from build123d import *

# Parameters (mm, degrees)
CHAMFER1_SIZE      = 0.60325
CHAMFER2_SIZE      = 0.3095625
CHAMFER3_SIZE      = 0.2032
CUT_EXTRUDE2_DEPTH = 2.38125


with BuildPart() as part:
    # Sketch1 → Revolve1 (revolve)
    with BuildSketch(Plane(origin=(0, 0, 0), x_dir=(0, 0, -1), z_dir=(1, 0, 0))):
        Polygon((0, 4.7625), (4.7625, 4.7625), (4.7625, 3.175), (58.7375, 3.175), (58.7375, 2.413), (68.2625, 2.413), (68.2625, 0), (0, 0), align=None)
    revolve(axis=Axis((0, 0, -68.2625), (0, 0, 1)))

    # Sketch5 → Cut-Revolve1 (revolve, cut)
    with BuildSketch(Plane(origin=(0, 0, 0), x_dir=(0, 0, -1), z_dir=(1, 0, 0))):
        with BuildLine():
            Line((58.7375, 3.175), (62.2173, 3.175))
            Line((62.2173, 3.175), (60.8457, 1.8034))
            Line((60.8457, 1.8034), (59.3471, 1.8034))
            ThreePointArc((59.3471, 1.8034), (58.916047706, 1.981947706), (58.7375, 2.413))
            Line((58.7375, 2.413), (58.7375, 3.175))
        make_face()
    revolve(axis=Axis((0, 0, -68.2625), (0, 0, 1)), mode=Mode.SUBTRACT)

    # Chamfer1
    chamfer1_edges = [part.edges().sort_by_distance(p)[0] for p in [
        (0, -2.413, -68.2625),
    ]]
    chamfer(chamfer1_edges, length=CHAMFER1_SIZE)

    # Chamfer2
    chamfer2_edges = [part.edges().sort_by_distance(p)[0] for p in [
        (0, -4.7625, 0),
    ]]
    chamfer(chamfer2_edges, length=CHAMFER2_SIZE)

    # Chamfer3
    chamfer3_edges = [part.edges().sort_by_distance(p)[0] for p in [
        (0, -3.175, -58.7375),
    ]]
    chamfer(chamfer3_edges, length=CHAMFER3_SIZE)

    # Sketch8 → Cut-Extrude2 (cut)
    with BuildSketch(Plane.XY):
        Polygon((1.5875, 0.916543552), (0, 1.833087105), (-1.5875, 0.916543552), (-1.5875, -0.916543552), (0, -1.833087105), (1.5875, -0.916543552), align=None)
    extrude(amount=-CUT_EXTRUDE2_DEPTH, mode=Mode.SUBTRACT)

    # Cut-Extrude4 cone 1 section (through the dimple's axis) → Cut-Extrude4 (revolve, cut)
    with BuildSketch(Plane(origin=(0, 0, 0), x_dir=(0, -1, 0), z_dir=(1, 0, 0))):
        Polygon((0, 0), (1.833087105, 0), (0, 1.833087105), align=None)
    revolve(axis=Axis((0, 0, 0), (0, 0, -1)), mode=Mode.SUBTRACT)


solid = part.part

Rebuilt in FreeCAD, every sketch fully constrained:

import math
import FreeCAD as App
import Part
import Sketcher

V = App.Vector
Q = App.Units.Quantity


def edges_at(feature, points):
    """Names of the edges that pass closest to the given points."""
    edges = feature.Shape.Edges
    near = lambda p: min(range(len(edges)), key=lambda i: edges[i].distToShape(Part.Vertex(*p))[0])
    return sorted({f"Edge{near(p) + 1}" for p in points})

doc = App.newDocument("Part")
body = doc.addObject("PartDesign::Body", "Body")

sketch1 = doc.addObject("Sketcher::SketchObject", "Sketch")
body.addObject(sketch1)
sketch1.AttachmentSupport = (doc.YZ_Plane, [""])
sketch1.MapMode = "FlatFace"
sketch1.addGeometry([
    Part.LineSegment(V(4.8, -4.8, 0), V(4.8, 0, 0)),
    Part.LineSegment(V(4.8, 0, 0), V(0, 0, 0)),
    Part.LineSegment(V(0, 0, 0), V(0, -68.3, 0)),
    Part.LineSegment(V(0, -68.3, 0), V(2.4, -68.3, 0)),
    Part.LineSegment(V(2.4, -68.3, 0), V(2.4, -58.7, 0)),
    Part.LineSegment(V(2.4, -58.7, 0), V(3.2, -58.7, 0)),
    Part.LineSegment(V(3.2, -58.7, 0), V(3.2, -4.8, 0)),
    Part.LineSegment(V(3.2, -4.8, 0), V(4.8, -4.8, 0)),
], False)
sketch1.addConstraint([
    Sketcher.Constraint("Coincident", 0, 2, 1, 1),
    Sketcher.Constraint("Coincident", 1, 2, 2, 1),
    Sketcher.Constraint("Coincident", 2, 2, 3, 1),
    Sketcher.Constraint("Coincident", 3, 2, 4, 1),
    Sketcher.Constraint("Coincident", 4, 2, 5, 1),
    Sketcher.Constraint("Coincident", 5, 2, 6, 1),
    Sketcher.Constraint("Coincident", 6, 2, 7, 1),
    Sketcher.Constraint("Coincident", 7, 2, 0, 1),
    Sketcher.Constraint("Vertical", 0),
    Sketcher.Constraint("Horizontal", 1),
    Sketcher.Constraint("Vertical", 2),
    Sketcher.Constraint("Horizontal", 3),
    Sketcher.Constraint("Vertical", 4),
    Sketcher.Constraint("Horizontal", 5),
    Sketcher.Constraint("Vertical", 6),
    Sketcher.Constraint("Horizontal", 7),
    Sketcher.Constraint("Coincident", 1, 2, -1, 1),
    Sketcher.Constraint("Equal", 1, 0),
    Sketcher.Constraint("DistanceX", 5, 1, 5, 2, Q("0.03 in")),
    Sketcher.Constraint("DistanceY", 3, 2, 6, 2, Q("2.5 in")),
    Sketcher.Constraint("DistanceX", 1, 2, 1, 1, Q("0.1875 in")),
    Sketcher.Constraint("DistanceX", 3, 1, 3, 2, Q("0.095 in")),
    Sketcher.Constraint("DistanceY", 4, 1, 4, 2, Q("0.375 in")),
])
revolution = doc.addObject("PartDesign::Revolution", "Revolution")
body.addObject(revolution)
revolution.Profile = sketch1
revolution.ReferenceAxis = (sketch1, ["V_Axis"])
revolution.Angle = 360

sketch2 = doc.addObject("Sketcher::SketchObject", "Sketch001")
body.addObject(sketch2)
sketch2.AttachmentSupport = (doc.YZ_Plane, [""])
sketch2.MapMode = "FlatFace"
sketch2.addGeometry([
    Part.LineSegment(V(3.2, -62.2, 0), V(3.2, -58.7, 0)),
    Part.LineSegment(V(3.2, -58.7, 0), V(2.4, -58.7, 0)),
    Part.ArcOfCircle(Part.Circle(V(2.4, -59.3, 0), V(0, 0, 1), 0.6), math.radians(90), math.radians(180)),
    Part.LineSegment(V(1.8, -59.3, 0), V(1.8, -60.8, 0)),
    Part.LineSegment(V(1.8, -60.8, 0), V(3.2, -62.2, 0)),
], False)
sketch2.addConstraint([
    Sketcher.Constraint("Coincident", 0, 2, 1, 1),
    Sketcher.Constraint("Tangent", 1, 2, 2, 1),
    Sketcher.Constraint("Tangent", 2, 2, 3, 1),
    Sketcher.Constraint("Coincident", 3, 2, 4, 1),
    Sketcher.Constraint("Coincident", 4, 2, 0, 1),
    Sketcher.Constraint("Vertical", 0),
    Sketcher.Constraint("Horizontal", 1),
    Sketcher.Constraint("Vertical", 3),
    Sketcher.Constraint("Angle", 4, Q("-45 deg")),
    Sketcher.Constraint("Radius", 2, Q("0.024 in")),
    Sketcher.Constraint("DistanceX", 1, 2, 1, 1, Q("0.03 in")),
    Sketcher.Constraint("DistanceY", 0, 1, 0, 2, Q("0.137 in")),
    Sketcher.Constraint("DistanceX", -1, 1, 2, 3, Q("0.095 in")),
    Sketcher.Constraint("DistanceY", 0, 2, -1, 1, Q("2.3125 in")),
])
groove = doc.addObject("PartDesign::Groove", "Groove")
body.addObject(groove)
groove.Profile = sketch2
groove.ReferenceAxis = (sketch2, ["V_Axis"])
groove.Angle = 360
doc.recompute()

chamfer = doc.addObject("PartDesign::Chamfer", "Chamfer")
body.addObject(chamfer)
chamfer.Base = (groove, edges_at(groove, [(0, -2.413, -68.263)]))
chamfer.Size = 0.60325
doc.recompute()

chamfer2 = doc.addObject("PartDesign::Chamfer", "Chamfer001")
body.addObject(chamfer2)
chamfer2.Base = (chamfer, edges_at(chamfer, [(0, -4.763, 0)]))
chamfer2.Size = 0.309563
doc.recompute()

chamfer3 = doc.addObject("PartDesign::Chamfer", "Chamfer002")
body.addObject(chamfer3)
chamfer3.Base = (chamfer2, edges_at(chamfer2, [(0, -3.175, -58.737)]))
chamfer3.Size = Q("0.008 in")

sketch3 = doc.addObject("Sketcher::SketchObject", "Sketch002")
body.addObject(sketch3)
sketch3.AttachmentSupport = (doc.XY_Plane, [""])
sketch3.MapMode = "FlatFace"
sketch3.addGeometry([
    Part.LineSegment(V(1.6, 0.9, 0), V(0, 1.8, 0)),
    Part.LineSegment(V(0, 1.8, 0), V(-1.6, 0.9, 0)),
    Part.LineSegment(V(-1.6, 0.9, 0), V(-1.6, -0.9, 0)),
    Part.LineSegment(V(-1.6, -0.9, 0), V(0, -1.8, 0)),
    Part.LineSegment(V(0, -1.8, 0), V(1.6, -0.9, 0)),
    Part.LineSegment(V(1.6, -0.9, 0), V(1.6, 0.9, 0)),
], False)
sketch3.addConstraint([
    Sketcher.Constraint("Coincident", 0, 2, 1, 1),
    Sketcher.Constraint("Coincident", 1, 2, 2, 1),
    Sketcher.Constraint("Coincident", 2, 2, 3, 1),
    Sketcher.Constraint("Coincident", 3, 2, 4, 1),
    Sketcher.Constraint("Coincident", 4, 2, 5, 1),
    Sketcher.Constraint("Coincident", 5, 2, 0, 1),
    Sketcher.Constraint("Vertical", 2),
    Sketcher.Constraint("Vertical", 5),
    Sketcher.Constraint("Symmetric", 0, 2, 3, 2, -1, 1),
    Sketcher.Constraint("Symmetric", 1, 2, 4, 2, -1, 1),
    Sketcher.Constraint("PointOnObject", 0, 2, -2),
    Sketcher.Constraint("Parallel", 0, 3),
    Sketcher.Constraint("Horizontal", 2, 2, 4, 2),
    Sketcher.Constraint("Angle", 0, Q("150 deg")),
    Sketcher.Constraint("DistanceX", 1, 2, -1, 1, Q("0.0625 in")),
    Sketcher.Constraint("DistanceY", 2, 2, 2, 1, 1.833087),
])
pocket1 = doc.addObject("PartDesign::Pocket", "Pocket")
body.addObject(pocket1)
pocket1.Profile = sketch3
pocket1.Length = Q("0.09375 in")

sketch4 = doc.addObject("Sketcher::SketchObject", "Sketch003")
body.addObject(sketch4)
sketch4.AttachmentSupport = (doc.YZ_Plane, [""])
sketch4.MapMode = "FlatFace"
sketch4.addGeometry([
    Part.LineSegment(V(0, 0, 0), V(-1.8, 0, 0)),
    Part.LineSegment(V(-1.8, 0, 0), V(0, -1.8, 0)),
    Part.LineSegment(V(0, -1.8, 0), V(0, 0, 0)),
], False)
sketch4.addConstraint([
    Sketcher.Constraint("Coincident", 0, 2, 1, 1),
    Sketcher.Constraint("Coincident", 1, 2, 2, 1),
    Sketcher.Constraint("Coincident", 2, 2, 0, 1),
    Sketcher.Constraint("Horizontal", 0),
    Sketcher.Constraint("Vertical", 2),
    Sketcher.Constraint("Coincident", 2, 2, -1, 1),
    Sketcher.Constraint("Equal", 0, 2),
    Sketcher.Constraint("DistanceX", 0, 2, 0, 1, 1.833087),
])
groove2 = doc.addObject("PartDesign::Groove", "Groove001")
body.addObject(groove2)
groove2.Profile = sketch4
groove2.ReferenceAxis = (sketch4, ["V_Axis"])
groove2.Angle = 360

doc.recompute()
